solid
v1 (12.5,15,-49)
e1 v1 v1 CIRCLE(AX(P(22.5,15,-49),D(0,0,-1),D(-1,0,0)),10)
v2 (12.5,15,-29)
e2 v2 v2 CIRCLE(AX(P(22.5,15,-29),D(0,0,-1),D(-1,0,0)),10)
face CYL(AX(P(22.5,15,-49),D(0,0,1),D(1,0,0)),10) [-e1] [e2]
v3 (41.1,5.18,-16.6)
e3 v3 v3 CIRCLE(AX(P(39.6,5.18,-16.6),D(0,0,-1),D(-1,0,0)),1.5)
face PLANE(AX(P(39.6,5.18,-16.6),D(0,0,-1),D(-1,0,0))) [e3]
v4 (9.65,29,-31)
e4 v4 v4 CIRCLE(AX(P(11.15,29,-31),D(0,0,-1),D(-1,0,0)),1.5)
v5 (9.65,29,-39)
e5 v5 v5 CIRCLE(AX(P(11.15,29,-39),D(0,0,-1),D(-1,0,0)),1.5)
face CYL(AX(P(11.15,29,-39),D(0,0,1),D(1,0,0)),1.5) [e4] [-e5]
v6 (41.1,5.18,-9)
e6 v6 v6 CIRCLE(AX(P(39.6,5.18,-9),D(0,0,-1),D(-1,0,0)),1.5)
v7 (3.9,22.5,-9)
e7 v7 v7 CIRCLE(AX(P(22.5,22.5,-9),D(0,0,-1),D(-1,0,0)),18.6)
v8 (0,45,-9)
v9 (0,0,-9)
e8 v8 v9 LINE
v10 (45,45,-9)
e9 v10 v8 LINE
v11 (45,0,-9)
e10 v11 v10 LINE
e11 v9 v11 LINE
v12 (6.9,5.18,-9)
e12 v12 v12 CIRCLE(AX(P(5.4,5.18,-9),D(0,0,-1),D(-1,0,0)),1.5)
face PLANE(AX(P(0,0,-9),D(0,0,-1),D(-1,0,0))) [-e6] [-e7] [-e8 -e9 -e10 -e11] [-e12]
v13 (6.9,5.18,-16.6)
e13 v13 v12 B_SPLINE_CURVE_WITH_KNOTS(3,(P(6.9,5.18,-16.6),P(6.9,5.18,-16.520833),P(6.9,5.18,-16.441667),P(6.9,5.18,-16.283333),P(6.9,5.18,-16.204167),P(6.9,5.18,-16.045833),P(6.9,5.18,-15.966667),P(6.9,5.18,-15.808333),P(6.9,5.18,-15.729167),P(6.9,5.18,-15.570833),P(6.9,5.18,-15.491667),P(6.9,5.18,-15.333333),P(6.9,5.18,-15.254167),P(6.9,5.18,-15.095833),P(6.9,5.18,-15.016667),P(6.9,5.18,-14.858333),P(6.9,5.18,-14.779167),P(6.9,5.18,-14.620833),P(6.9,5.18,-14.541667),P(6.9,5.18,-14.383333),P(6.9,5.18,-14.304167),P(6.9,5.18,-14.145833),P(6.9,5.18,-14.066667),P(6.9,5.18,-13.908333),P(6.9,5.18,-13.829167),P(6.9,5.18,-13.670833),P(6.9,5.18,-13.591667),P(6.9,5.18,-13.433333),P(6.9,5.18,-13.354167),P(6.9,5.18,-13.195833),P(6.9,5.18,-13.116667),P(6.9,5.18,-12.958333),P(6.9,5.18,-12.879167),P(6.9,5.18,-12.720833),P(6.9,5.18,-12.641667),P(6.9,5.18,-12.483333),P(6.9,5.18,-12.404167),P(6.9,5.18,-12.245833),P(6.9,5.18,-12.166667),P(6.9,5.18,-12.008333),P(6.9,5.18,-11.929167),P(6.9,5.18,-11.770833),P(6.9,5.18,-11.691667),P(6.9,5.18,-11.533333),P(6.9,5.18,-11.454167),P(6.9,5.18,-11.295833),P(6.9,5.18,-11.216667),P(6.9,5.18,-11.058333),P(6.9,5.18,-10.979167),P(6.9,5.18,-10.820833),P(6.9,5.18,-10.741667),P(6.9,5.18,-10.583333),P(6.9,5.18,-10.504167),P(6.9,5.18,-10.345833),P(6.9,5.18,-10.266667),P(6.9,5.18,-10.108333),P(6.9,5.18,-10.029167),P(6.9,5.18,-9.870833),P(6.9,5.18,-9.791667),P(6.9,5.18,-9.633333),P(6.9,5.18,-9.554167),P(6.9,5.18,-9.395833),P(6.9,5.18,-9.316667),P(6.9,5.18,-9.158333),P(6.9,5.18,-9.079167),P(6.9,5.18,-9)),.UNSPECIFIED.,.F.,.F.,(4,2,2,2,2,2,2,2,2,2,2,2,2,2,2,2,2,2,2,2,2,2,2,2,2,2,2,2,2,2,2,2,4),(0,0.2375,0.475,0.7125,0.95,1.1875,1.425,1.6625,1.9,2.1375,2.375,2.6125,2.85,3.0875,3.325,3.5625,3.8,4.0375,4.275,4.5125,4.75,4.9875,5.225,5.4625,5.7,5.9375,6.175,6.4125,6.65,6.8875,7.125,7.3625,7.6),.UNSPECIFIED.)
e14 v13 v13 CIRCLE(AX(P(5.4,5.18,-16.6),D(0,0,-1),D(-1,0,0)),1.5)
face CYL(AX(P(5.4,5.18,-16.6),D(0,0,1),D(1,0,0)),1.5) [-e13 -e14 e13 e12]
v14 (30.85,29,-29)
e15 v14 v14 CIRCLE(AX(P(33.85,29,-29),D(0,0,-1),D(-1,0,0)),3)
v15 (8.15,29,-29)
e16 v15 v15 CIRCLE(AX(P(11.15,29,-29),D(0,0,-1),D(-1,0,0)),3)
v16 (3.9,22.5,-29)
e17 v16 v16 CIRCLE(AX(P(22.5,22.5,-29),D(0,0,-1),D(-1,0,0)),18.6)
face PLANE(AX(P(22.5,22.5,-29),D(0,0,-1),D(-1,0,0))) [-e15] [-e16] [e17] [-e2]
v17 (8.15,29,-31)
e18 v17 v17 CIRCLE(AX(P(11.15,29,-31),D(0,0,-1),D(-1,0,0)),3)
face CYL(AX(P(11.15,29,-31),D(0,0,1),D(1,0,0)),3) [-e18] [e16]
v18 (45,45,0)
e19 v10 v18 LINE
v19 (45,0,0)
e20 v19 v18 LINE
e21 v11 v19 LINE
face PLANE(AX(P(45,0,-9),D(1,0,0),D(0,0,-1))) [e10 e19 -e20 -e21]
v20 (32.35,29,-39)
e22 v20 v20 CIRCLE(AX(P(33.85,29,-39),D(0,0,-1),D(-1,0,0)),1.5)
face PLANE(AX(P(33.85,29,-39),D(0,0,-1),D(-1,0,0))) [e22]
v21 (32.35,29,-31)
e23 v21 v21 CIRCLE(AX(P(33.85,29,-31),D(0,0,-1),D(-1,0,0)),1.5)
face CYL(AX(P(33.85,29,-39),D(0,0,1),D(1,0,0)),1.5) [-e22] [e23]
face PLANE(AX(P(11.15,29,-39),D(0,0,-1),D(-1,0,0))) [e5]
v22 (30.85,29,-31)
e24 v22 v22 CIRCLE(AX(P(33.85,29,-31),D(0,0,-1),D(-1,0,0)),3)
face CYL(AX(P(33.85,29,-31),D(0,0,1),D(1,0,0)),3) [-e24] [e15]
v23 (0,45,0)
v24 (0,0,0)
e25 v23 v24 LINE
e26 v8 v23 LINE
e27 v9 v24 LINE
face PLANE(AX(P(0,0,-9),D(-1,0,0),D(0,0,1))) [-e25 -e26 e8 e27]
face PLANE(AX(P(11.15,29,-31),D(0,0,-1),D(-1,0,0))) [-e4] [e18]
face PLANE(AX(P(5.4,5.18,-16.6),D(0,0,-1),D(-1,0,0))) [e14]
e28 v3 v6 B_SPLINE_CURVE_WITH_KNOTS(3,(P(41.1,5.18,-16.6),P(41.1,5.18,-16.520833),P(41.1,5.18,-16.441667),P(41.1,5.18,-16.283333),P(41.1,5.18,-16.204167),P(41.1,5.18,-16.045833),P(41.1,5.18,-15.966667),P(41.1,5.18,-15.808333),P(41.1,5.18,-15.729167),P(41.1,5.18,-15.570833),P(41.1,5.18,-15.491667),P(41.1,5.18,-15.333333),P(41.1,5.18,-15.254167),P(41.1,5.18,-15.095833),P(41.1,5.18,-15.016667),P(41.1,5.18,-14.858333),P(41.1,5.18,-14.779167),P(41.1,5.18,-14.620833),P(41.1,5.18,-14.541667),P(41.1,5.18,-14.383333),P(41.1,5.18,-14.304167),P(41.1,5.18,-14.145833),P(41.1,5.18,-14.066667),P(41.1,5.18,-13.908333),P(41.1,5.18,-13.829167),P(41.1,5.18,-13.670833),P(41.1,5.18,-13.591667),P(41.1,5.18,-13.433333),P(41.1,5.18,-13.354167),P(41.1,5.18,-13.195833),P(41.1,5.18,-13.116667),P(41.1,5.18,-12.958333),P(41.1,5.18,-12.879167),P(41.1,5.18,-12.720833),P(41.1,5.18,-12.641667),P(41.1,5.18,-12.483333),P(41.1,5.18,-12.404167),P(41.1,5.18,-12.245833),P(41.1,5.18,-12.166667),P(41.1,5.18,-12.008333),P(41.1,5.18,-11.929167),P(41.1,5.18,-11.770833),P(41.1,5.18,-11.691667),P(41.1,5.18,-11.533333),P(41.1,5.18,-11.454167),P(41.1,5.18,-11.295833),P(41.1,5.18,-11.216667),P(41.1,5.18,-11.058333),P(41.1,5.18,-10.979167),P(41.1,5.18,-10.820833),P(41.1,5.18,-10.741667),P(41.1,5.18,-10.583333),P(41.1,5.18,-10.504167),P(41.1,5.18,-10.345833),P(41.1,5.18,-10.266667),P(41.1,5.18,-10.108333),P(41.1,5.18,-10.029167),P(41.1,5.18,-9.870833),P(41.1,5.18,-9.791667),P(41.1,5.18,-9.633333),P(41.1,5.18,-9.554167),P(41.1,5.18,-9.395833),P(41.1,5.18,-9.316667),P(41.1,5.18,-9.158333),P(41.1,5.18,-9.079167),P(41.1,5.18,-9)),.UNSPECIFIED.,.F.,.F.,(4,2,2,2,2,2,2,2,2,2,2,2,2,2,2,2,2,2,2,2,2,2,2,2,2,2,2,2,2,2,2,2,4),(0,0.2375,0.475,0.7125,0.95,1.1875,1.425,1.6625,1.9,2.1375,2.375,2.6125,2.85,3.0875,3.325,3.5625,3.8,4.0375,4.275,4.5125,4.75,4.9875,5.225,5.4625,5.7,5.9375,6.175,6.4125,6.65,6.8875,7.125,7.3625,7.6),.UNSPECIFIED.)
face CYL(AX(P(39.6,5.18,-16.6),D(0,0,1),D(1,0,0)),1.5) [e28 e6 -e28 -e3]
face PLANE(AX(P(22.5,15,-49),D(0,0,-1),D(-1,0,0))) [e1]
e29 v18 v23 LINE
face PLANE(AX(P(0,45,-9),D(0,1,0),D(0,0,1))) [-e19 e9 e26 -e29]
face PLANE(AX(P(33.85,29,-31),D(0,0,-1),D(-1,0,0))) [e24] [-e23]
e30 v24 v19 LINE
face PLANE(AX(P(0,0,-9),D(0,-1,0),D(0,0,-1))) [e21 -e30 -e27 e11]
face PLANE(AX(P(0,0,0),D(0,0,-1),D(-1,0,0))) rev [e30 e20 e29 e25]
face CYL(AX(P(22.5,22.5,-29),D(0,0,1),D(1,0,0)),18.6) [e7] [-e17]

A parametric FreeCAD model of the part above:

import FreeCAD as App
import Part
import Sketcher
from FreeCAD import Vector


def add_polygon(sketch, points):
    """Adds a closed chain of lines whose ends are joined by coincident constraints."""
    first, n = sketch.GeometryCount, len(points)
    for a, b in zip(points, points[1:] + points[:1]):
        sketch.addGeometry(Part.LineSegment(App.Vector(*a, 0), App.Vector(*b, 0)), False)
    for i in range(n):
        sketch.addConstraint(Sketcher.Constraint("Coincident", first + i, 2, first + (i + 1) % n, 1))

doc = App.newDocument("Part")
body = doc.addObject("PartDesign::Body", "Body")

sketch1 = body.newObject("Sketcher::SketchObject", "Sketch")
sketch1.AttachmentSupport = (doc.getObject("XY_Plane"), [""])
sketch1.MapMode = "FlatFace"
add_polygon(sketch1, [(0, 45), (0, 0), (45, 0), (45, 45)])
sketch1.addConstraint(Sketcher.Constraint("Vertical", 0))
sketch1.addConstraint(Sketcher.Constraint("Horizontal", 1))
sketch1.addConstraint(Sketcher.Constraint("Vertical", 2))
sketch1.addConstraint(Sketcher.Constraint("Horizontal", 3))
sketch1.addConstraint(Sketcher.Constraint("Coincident", 0, 2, -1, 1))
sketch1.addConstraint(Sketcher.Constraint("Equal", 3, 0))
sketch1.addConstraint(Sketcher.Constraint("DistanceX", 1, 1, 1, 2, 45.0))
pad1 = body.newObject("PartDesign::Pad", "Pad")
pad1.Profile = sketch1
pad1.Length = 9
pad1.Reversed = True

sketch2 = body.newObject("Sketcher::SketchObject", "Sketch001")
sketch2.AttachmentSupport = (doc.getObject("XY_Plane"), [""])
sketch2.MapMode = "FlatFace"
sketch2.AttachmentOffset = App.Placement(Vector(0, 0, -9), App.Rotation())
sketch2.addGeometry(Part.Circle(Vector(22, 22, 0), Vector(0, 0, 1), 19), False)
sketch2.addConstraint(Sketcher.Constraint("Diameter", 0, 37.2))
sketch2.addConstraint(Sketcher.Constraint("DistanceX", -1, 1, 0, 3, 22.5))
sketch2.addConstraint(Sketcher.Constraint("DistanceY", -1, 1, 0, 3, 22.5))
pad2 = body.newObject("PartDesign::Pad", "Pad001")
pad2.Profile = sketch2
pad2.Length = 20
pad2.Reversed = True

sketch3 = body.newObject("Sketcher::SketchObject", "Sketch002")
sketch3.AttachmentSupport = (doc.getObject("XY_Plane"), [""])
sketch3.MapMode = "FlatFace"
sketch3.AttachmentOffset = App.Placement(Vector(0, 0, -29), App.Rotation())
sketch3.addGeometry(Part.Circle(Vector(33.9, 29, 0), Vector(0, 0, 1), 3), False)
sketch3.addGeometry(Part.Circle(Vector(11.2, 29, 0), Vector(0, 0, 1), 3), False)
sketch3.addConstraint(Sketcher.Constraint("Equal", 0, 1))
sketch3.addConstraint(Sketcher.Constraint("Horizontal", 0, 3, 1, 3))
sketch3.addConstraint(Sketcher.Constraint("Diameter", 0, 6.0))
sketch3.addConstraint(Sketcher.Constraint("DistanceY", -1, 1, 0, 3, 29.0))
sketch3.addConstraint(Sketcher.Constraint("DistanceX", 1, 3, 0, 3, 22.7))
sketch3.addConstraint(Sketcher.Constraint("DistanceX", -1, 1, 0, 3, 33.85))
pad3 = body.newObject("PartDesign::Pad", "Pad002")
pad3.Profile = sketch3
pad3.Length = 2
pad3.Reversed = True

sketch4 = body.newObject("Sketcher::SketchObject", "Sketch003")
sketch4.AttachmentSupport = (doc.getObject("XY_Plane"), [""])
sketch4.MapMode = "FlatFace"
sketch4.AttachmentOffset = App.Placement(Vector(0, 0, -31), App.Rotation())
sketch4.addGeometry(Part.Circle(Vector(33.9, 29, 0), Vector(0, 0, 1), 1.5), False)
sketch4.addGeometry(Part.Circle(Vector(11.2, 29, 0), Vector(0, 0, 1), 1.5), False)
sketch4.addConstraint(Sketcher.Constraint("Equal", 0, 1))
sketch4.addConstraint(Sketcher.Constraint("Horizontal", 0, 3, 1, 3))
sketch4.addConstraint(Sketcher.Constraint("Diameter", 0, 3.0))
sketch4.addConstraint(Sketcher.Constraint("DistanceY", -1, 1, 0, 3, 29.0))
sketch4.addConstraint(Sketcher.Constraint("DistanceX", 1, 3, 0, 3, 22.7))
sketch4.addConstraint(Sketcher.Constraint("DistanceX", -1, 1, 0, 3, 33.85))
pad4 = body.newObject("PartDesign::Pad", "Pad003")
pad4.Profile = sketch4
pad4.Length = 8
pad4.Reversed = True

sketch5 = body.newObject("Sketcher::SketchObject", "Sketch004")
sketch5.AttachmentSupport = (doc.getObject("XY_Plane"), [""])
sketch5.MapMode = "FlatFace"
sketch5.AttachmentOffset = App.Placement(Vector(0, 0, -29), App.Rotation())
sketch5.addGeometry(Part.Circle(Vector(22, 15, 0), Vector(0, 0, 1), 10), False)
sketch5.addConstraint(Sketcher.Constraint("Diameter", 0, 20.0))
sketch5.addConstraint(Sketcher.Constraint("DistanceY", -1, 1, 0, 3, 15.0))
sketch5.addConstraint(Sketcher.Constraint("DistanceX", -1, 1, 0, 3, 22.5))
pad5 = body.newObject("PartDesign::Pad", "Pad004")
pad5.Profile = sketch5
pad5.Length = 20
pad5.Reversed = True

sketch6 = body.newObject("Sketcher::SketchObject", "Sketch005")
sketch6.AttachmentSupport = (doc.getObject("XY_Plane"), [""])
sketch6.MapMode = "FlatFace"
sketch6.AttachmentOffset = App.Placement(Vector(0, 0, -9), App.Rotation())
sketch6.addGeometry(Part.Circle(Vector(39.6, 5.2, 0), Vector(0, 0, 1), 1.5), False)
sketch6.addGeometry(Part.Circle(Vector(5.4, 5.2, 0), Vector(0, 0, 1), 1.5), False)
sketch6.addConstraint(Sketcher.Constraint("Equal", 0, 1))
sketch6.addConstraint(Sketcher.Constraint("Horizontal", 0, 3, 1, 3))
sketch6.addConstraint(Sketcher.Constraint("Diameter", 0, 3.0))
sketch6.addConstraint(Sketcher.Constraint("DistanceX", -1, 1, 0, 3, 39.6))
sketch6.addConstraint(Sketcher.Constraint("DistanceX", -1, 1, 1, 3, 5.4))
sketch6.addConstraint(Sketcher.Constraint("DistanceY", -1, 1, 0, 3, 5.18))
pad6 = body.newObject("PartDesign::Pad", "Pad005")
pad6.Profile = sketch6
pad6.Length = 7.6
pad6.Reversed = True

doc.recompute()
